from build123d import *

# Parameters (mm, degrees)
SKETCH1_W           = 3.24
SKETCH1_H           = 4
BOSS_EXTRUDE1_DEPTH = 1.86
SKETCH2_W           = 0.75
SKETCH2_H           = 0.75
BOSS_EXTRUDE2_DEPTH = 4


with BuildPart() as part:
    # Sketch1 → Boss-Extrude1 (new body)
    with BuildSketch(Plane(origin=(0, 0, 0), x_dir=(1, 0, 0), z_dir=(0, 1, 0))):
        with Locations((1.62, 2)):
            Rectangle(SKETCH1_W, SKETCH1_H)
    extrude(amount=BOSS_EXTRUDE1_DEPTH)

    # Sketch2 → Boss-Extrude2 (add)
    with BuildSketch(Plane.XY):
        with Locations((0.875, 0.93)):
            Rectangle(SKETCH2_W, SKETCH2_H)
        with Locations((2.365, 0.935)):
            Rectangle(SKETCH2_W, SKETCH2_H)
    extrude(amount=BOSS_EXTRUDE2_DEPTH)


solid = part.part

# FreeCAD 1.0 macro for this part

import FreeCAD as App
import Part
import Sketcher
from FreeCAD import Vector


def add_polygon(sketch, points):
    """Adds a closed chain of lines whose ends are joined by coincident constraints."""
    first, n = sketch.GeometryCount, len(points)
    for a, b in zip(points, points[1:] + points[:1]):
        sketch.addGeometry(Part.LineSegment(App.Vector(*a, 0), App.Vector(*b, 0)), False)
    for i in range(n):
        sketch.addConstraint(Sketcher.Constraint("Coincident", first + i, 2, first + (i + 1) % n, 1))

doc = App.newDocument("Part")
body = doc.addObject("PartDesign::Body", "Body")

sketch1 = body.newObject("Sketcher::SketchObject", "Sketch")
sketch1.AttachmentSupport = (doc.getObject("XZ_Plane"), [""])
sketch1.MapMode = "FlatFace"
add_polygon(sketch1, [(0, -4), (0, 0), (3.24, 0), (3.24, -4)])
sketch1.addConstraint(Sketcher.Constraint("Vertical", 0))
sketch1.addConstraint(Sketcher.Constraint("Horizontal", 1))
sketch1.addConstraint(Sketcher.Constraint("Vertical", 2))
sketch1.addConstraint(Sketcher.Constraint("Horizontal", 3))
sketch1.addConstraint(Sketcher.Constraint("Coincident", 0, 2, -1, 1))
sketch1.addConstraint(Sketcher.Constraint("DistanceY", 0, 1, 0, 2, 4.0))
sketch1.addConstraint(Sketcher.Constraint("DistanceX", 1, 1, 1, 2, 3.24))
pad1 = body.newObject("PartDesign::Pad", "Pad")
pad1.Profile = sketch1
pad1.Length = 1.86
pad1.Reversed = True

sketch2 = body.newObject("Sketcher::SketchObject", "Sketch001")
sketch2.AttachmentSupport = (doc.getObject("XY_Plane"), [""])
sketch2.MapMode = "FlatFace"
add_polygon(sketch2, [(0.5, 1.305), (0.5, 0.555), (1.25, 0.555), (1.25, 1.305)])
add_polygon(sketch2, [(1.99, 1.31), (1.99, 0.56), (2.74, 0.56), (2.74, 1.31)])
sketch2.addConstraint(Sketcher.Constraint("Vertical", 0))
sketch2.addConstraint(Sketcher.Constraint("Horizontal", 1))
sketch2.addConstraint(Sketcher.Constraint("Vertical", 2))
sketch2.addConstraint(Sketcher.Constraint("Horizontal", 3))
sketch2.addConstraint(Sketcher.Constraint("Vertical", 4))
sketch2.addConstraint(Sketcher.Constraint("Horizontal", 5))
sketch2.addConstraint(Sketcher.Constraint("Vertical", 6))
sketch2.addConstraint(Sketcher.Constraint("Horizontal", 7))
sketch2.addConstraint(Sketcher.Constraint("Equal", 3, 5))
sketch2.addConstraint(Sketcher.Constraint("Equal", 7, 0))
sketch2.addConstraint(Sketcher.Constraint("Equal", 2, 4))
sketch2.addConstraint(Sketcher.Constraint("DistanceX", 1, 1, 1, 2, 0.75))
sketch2.addConstraint(Sketcher.Constraint("DistanceX", -1, 1, 0, 2, 0.5))
sketch2.addConstraint(Sketcher.Constraint("DistanceX", -1, 1, 4, 2, 1.99))
sketch2.addConstraint(Sketcher.Constraint("DistanceY", -1, 1, 4, 2, 0.56))
sketch2.addConstraint(Sketcher.Constraint("DistanceY", -1, 1, 0, 2, 0.555))
pad2 = body.newObject("PartDesign::Pad", "Pad001")
pad2.Profile = sketch2
pad2.Length = 4

doc.recompute()
